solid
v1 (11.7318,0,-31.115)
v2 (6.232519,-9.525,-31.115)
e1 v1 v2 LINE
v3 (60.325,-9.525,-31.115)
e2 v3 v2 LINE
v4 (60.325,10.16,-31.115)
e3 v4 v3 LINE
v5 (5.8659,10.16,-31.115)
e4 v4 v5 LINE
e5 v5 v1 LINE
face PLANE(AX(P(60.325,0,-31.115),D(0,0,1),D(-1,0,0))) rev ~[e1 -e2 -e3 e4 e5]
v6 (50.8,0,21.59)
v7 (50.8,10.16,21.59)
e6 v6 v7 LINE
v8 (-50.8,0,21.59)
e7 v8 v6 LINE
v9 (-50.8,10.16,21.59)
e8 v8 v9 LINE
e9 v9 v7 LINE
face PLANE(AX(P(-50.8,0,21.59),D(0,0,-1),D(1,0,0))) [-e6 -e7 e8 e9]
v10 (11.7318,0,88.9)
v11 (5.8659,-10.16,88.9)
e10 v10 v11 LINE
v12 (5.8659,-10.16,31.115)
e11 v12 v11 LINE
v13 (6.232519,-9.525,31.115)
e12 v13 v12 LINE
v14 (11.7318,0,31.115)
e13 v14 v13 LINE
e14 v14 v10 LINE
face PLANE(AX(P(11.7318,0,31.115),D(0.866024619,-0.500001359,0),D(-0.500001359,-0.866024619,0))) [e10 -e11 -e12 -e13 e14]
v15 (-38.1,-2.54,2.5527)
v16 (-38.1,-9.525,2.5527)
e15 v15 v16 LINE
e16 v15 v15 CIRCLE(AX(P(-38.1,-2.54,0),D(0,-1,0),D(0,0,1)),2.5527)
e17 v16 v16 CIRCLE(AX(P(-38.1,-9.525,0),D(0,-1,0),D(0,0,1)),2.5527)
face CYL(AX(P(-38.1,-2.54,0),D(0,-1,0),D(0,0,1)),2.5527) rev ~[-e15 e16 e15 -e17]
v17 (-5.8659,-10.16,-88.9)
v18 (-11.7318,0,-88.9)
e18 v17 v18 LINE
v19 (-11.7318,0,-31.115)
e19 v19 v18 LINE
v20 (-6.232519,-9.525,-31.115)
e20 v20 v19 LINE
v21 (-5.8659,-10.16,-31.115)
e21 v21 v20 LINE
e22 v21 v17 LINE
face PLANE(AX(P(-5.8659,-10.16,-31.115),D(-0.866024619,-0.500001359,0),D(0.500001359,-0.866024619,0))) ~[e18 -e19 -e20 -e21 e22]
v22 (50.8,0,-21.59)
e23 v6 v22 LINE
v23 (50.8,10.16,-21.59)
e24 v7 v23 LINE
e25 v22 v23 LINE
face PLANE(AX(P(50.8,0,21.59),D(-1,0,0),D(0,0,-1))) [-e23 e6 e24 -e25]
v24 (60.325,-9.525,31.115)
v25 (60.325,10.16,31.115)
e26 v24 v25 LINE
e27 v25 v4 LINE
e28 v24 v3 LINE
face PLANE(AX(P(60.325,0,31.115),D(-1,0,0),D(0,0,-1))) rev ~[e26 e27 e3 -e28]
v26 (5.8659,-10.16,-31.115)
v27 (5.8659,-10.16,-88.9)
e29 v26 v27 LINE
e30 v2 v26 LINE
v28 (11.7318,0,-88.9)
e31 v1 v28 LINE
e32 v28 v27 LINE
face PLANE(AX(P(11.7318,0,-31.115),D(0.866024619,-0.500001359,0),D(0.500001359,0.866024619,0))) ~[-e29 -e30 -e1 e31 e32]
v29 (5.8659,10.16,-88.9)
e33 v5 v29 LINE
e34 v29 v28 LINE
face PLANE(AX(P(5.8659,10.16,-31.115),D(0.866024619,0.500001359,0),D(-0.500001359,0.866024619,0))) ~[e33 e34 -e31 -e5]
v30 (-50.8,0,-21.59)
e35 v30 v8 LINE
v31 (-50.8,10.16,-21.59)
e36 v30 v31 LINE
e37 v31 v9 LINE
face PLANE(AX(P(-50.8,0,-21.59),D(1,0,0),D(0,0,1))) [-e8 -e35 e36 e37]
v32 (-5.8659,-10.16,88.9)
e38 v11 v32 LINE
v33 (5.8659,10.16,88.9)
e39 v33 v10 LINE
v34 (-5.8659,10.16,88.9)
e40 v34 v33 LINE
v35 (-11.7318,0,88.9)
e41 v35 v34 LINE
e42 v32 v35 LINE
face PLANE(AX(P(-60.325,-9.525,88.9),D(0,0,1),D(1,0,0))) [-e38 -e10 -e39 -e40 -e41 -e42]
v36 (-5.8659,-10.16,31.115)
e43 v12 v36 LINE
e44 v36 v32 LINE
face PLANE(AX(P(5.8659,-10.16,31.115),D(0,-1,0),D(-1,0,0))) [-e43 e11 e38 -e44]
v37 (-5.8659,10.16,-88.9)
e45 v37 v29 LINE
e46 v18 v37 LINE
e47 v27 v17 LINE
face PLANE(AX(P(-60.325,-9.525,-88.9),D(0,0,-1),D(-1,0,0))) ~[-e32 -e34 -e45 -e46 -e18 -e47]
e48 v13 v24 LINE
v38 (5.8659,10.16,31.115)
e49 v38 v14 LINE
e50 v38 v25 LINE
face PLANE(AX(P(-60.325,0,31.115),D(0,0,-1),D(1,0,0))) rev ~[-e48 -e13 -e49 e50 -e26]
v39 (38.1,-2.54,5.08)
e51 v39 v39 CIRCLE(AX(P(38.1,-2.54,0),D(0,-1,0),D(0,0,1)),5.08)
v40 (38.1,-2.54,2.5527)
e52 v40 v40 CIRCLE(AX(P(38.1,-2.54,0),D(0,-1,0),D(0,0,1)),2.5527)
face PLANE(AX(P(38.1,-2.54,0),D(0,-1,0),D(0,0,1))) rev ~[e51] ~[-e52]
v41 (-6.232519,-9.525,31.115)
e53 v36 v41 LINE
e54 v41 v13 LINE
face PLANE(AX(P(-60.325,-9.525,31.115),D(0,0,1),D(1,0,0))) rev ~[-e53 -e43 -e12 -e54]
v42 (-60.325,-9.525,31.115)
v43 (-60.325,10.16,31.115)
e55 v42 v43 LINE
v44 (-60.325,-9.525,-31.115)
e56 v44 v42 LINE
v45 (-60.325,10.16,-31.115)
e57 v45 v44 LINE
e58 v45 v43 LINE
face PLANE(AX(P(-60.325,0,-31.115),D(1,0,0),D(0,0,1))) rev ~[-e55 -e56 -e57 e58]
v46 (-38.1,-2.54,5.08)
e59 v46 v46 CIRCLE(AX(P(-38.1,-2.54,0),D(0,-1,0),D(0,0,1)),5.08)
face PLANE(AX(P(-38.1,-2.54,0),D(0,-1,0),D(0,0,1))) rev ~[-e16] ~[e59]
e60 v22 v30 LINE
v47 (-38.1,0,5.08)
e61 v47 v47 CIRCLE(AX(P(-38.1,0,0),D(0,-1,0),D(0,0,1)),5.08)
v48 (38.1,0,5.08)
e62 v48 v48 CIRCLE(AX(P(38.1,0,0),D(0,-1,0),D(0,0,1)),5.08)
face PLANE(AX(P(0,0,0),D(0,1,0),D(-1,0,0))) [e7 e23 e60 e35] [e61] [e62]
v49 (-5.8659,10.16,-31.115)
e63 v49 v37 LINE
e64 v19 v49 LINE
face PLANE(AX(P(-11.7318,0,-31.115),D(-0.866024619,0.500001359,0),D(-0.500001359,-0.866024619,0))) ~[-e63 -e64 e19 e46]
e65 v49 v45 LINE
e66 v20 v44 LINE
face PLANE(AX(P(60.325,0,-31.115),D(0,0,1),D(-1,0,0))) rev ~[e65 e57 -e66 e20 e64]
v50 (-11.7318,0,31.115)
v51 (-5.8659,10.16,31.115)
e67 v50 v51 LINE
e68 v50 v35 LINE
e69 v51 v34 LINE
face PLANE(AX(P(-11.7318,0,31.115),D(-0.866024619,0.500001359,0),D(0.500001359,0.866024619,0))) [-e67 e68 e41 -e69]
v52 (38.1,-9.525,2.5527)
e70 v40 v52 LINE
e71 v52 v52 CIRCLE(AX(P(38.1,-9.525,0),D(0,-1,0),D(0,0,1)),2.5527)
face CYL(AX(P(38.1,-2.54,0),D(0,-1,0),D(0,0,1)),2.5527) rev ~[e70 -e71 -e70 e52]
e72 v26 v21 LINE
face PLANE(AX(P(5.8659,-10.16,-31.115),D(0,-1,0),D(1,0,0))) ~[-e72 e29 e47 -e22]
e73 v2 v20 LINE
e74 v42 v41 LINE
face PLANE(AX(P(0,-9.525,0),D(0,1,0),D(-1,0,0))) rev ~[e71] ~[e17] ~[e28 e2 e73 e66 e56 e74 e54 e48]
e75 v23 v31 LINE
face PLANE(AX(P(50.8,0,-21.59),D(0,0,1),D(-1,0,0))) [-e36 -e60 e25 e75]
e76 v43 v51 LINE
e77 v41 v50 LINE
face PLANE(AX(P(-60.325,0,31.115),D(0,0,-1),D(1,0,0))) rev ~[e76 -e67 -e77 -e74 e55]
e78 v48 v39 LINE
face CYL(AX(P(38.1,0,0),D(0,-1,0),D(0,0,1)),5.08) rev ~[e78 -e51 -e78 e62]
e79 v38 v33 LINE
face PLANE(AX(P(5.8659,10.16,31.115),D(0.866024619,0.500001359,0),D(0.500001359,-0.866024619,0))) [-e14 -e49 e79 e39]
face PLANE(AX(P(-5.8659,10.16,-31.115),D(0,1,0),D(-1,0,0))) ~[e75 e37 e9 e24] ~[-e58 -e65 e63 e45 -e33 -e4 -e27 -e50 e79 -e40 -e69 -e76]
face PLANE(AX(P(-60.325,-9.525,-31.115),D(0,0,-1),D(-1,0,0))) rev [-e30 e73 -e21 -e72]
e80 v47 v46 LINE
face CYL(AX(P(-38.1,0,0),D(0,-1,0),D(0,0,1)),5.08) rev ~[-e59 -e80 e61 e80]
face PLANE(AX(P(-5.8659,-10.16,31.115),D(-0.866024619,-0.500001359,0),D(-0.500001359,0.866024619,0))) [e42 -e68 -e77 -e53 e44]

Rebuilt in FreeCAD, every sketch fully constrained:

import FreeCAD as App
import Part
import Sketcher
from FreeCAD import Vector
Q = App.Units.Quantity


def add_polygon(sketch, points):
    """Adds a closed chain of lines whose ends are joined by coincident constraints."""
    first, n = sketch.GeometryCount, len(points)
    for a, b in zip(points, points[1:] + points[:1]):
        sketch.addGeometry(Part.LineSegment(App.Vector(*a, 0), App.Vector(*b, 0)), False)
    for i in range(n):
        sketch.addConstraint(Sketcher.Constraint("Coincident", first + i, 2, first + (i + 1) % n, 1))

doc = App.newDocument("Part")
params = doc.addObject("Spreadsheet::Sheet", "Params")
for row, (alias, value) in enumerate([
    ("sketch1_width", "4.75 in"),
    ("sketch1_height", "2.45 in"),
    ("pad1_length", "0.375 in"),
    ("sketch2_width", "4 in"),
    ("sketch2_height", "1.7 in"),
    ("sketch2_width2", "4.75 in"),
    ("sketch2_height2", "2.45 in"),
    ("pad2_length", "0.4 in"),
    ("sketch3_diameter", "0.201 in"),
    ("hole_diameter", "0.201 in"),
    ("hole_cbore_diameter", "0.4 in"),
    ("hole_cbore_depth", "0.1 in"),
    ("pad3_length", "2.275 in"),
], start=1):
    params.set(f"A{row}", alias)
    params.set(f"B{row}", "=" + value)
    params.setAlias(f"B{row}", alias)

body = doc.addObject("PartDesign::Body", "Body")

# Sketch on XZ plane
sketch1 = body.newObject("Sketcher::SketchObject", "Sketch")
sketch1.AttachmentSupport = (doc.getObject("XZ_Plane"), [""])
sketch1.MapMode = "FlatFace"
add_polygon(sketch1, [(-60.325, -31.115), (-60.325, 31.115), (60.325, 31.115), (60.325, -31.115)])  # lines 0-3
sketch1.addConstraint([
    Sketcher.Constraint("Vertical", 0),
    Sketcher.Constraint("Horizontal", 1),
    Sketcher.Constraint("Vertical", 2),
    Sketcher.Constraint("Horizontal", 3),
    Sketcher.Constraint("Symmetric", 0, 2, 2, 2, -1, 1),
    Sketcher.Constraint("DistanceX", 1, 1, 1, 2, Q("4.75 in")),
    Sketcher.Constraint("DistanceY", 0, 1, 0, 2, Q("2.45 in")),
])
sketch1.setExpression("Constraints[9]", "Params.sketch1_width")
sketch1.setExpression("Constraints[10]", "Params.sketch1_height")
pad1 = body.newObject("PartDesign::Pad", "Pad")
pad1.Profile = sketch1
pad1.setExpression("Length", "Params.pad1_length")

# Sketch on XZ plane
sketch2 = body.newObject("Sketcher::SketchObject", "Sketch001")
sketch2.AttachmentSupport = (doc.getObject("XZ_Plane"), [""])
sketch2.MapMode = "FlatFace"
add_polygon(sketch2, [(-60.325, -31.115), (-60.325, 31.115), (60.325, 31.115), (60.325, -31.115)])  # lines 0-3
add_polygon(sketch2, [(50.8, 21.59), (-50.8, 21.59), (-50.8, -21.59), (50.8, -21.59)])  # lines 4-7
sketch2.addConstraint([
    Sketcher.Constraint("Vertical", 0),
    Sketcher.Constraint("Horizontal", 1),
    Sketcher.Constraint("Vertical", 2),
    Sketcher.Constraint("Horizontal", 3),
    Sketcher.Constraint("Horizontal", 4),
    Sketcher.Constraint("Vertical", 5),
    Sketcher.Constraint("Horizontal", 6),
    Sketcher.Constraint("Vertical", 7),
    Sketcher.Constraint("Symmetric", 0, 2, 2, 2, -1, 1),
    Sketcher.Constraint("Symmetric", 4, 2, 6, 2, -1, 1),
    Sketcher.Constraint("DistanceX", 4, 2, 4, 1, Q("4 in")),
    Sketcher.Constraint("DistanceY", 5, 2, 5, 1, Q("1.7 in")),
    Sketcher.Constraint("DistanceX", 1, 1, 1, 2, Q("4.75 in")),
    Sketcher.Constraint("DistanceY", 0, 1, 0, 2, Q("2.45 in")),
])
sketch2.setExpression("Constraints[18]", "Params.sketch2_width")
sketch2.setExpression("Constraints[19]", "Params.sketch2_height")
sketch2.setExpression("Constraints[20]", "Params.sketch2_width2")
sketch2.setExpression("Constraints[21]", "Params.sketch2_height2")
pad2 = body.newObject("PartDesign::Pad", "Pad001")
pad2.Profile = sketch2
pad2.setExpression("Length", "Params.pad2_length")
pad2.Reversed = True

# Sketch on XZ plane
sketch3 = body.newObject("Sketcher::SketchObject", "Sketch002")
sketch3.AttachmentSupport = (doc.getObject("XZ_Plane"), [""])
sketch3.MapMode = "FlatFace"
sketch3.addGeometry([
    Part.Circle(Vector(-38.1, 0, 0), Vector(0, 0, 1), 2.5527),
    Part.Circle(Vector(38.1, 0, 0), Vector(0, 0, 1), 2.5527),
], False)
sketch3.addConstraint([
    Sketcher.Constraint("Equal", 0, 1),
    Sketcher.Constraint("Symmetric", 0, 3, 1, 3, -1, 1),
    Sketcher.Constraint("PointOnObject", 0, 3, -1),
    Sketcher.Constraint("Diameter", 0, Q("0.201 in")),
    Sketcher.Constraint("DistanceX", 0, 3, 1, 3, Q("3 in")),
])
sketch3.setExpression("Constraints[3]", "Params.sketch3_diameter")
doc.recompute()
hole = body.newObject("PartDesign::Hole", "Hole")
hole.Profile = sketch3
hole.ThreadType = "None"
hole.setExpression("Diameter", "Params.hole_diameter")
hole.DepthType = "ThroughAll"
hole.HoleCutType = "Counterbore"
hole.setExpression("HoleCutDiameter", "Params.hole_cbore_diameter")
hole.setExpression("HoleCutDepth", "Params.hole_cbore_depth")
hole.Reversed = True

# Sketch on XY plane
sketch4 = body.newObject("Sketcher::SketchObject", "Sketch003")
sketch4.AttachmentSupport = (doc.getObject("XY_Plane"), [""])
sketch4.MapMode = "FlatFace"
sketch4.AttachmentOffset = App.Placement(Vector(0, 0, 1.225 * 25.4), App.Rotation())
add_polygon(sketch4, [(5.8659, 10.16), (-5.8659, 10.16), (-11.7318, 0), (-5.8659, -10.16), (5.8659, -10.16), (11.7318, 0)])  # lines 0-5
sketch4.addConstraint([
    Sketcher.Constraint("Horizontal", 0),
    Sketcher.Constraint("Horizontal", 3),
    Sketcher.Constraint("Symmetric", 0, 2, 3, 2, -1, 1),
    Sketcher.Constraint("Symmetric", 1, 2, 4, 2, -1, 1),
    Sketcher.Constraint("PointOnObject", 1, 2, -1),
    Sketcher.Constraint("Parallel", 2, 5),
    Sketcher.Constraint("Vertical", 0, 2, 2, 2),
    Sketcher.Constraint("Angle", 1, Q("-120 deg")),
    Sketcher.Constraint("DistanceY", -1, 1, 0, 2, Q("0.4 in")),
    Sketcher.Constraint("DistanceX", 0, 2, 0, 1, 11.7318),
])
pad3 = body.newObject("PartDesign::Pad", "Pad002")
pad3.Profile = sketch4
pad3.setExpression("Length", "Params.pad3_length")
doc.recompute()

mirrored = body.newObject("PartDesign::Mirrored", "Mirrored")
mirrored.Originals = [pad3]
mirrored.MirrorPlane = (doc.getObject("XY_Plane"), [""])
body.Tip = mirrored

doc.recompute()
